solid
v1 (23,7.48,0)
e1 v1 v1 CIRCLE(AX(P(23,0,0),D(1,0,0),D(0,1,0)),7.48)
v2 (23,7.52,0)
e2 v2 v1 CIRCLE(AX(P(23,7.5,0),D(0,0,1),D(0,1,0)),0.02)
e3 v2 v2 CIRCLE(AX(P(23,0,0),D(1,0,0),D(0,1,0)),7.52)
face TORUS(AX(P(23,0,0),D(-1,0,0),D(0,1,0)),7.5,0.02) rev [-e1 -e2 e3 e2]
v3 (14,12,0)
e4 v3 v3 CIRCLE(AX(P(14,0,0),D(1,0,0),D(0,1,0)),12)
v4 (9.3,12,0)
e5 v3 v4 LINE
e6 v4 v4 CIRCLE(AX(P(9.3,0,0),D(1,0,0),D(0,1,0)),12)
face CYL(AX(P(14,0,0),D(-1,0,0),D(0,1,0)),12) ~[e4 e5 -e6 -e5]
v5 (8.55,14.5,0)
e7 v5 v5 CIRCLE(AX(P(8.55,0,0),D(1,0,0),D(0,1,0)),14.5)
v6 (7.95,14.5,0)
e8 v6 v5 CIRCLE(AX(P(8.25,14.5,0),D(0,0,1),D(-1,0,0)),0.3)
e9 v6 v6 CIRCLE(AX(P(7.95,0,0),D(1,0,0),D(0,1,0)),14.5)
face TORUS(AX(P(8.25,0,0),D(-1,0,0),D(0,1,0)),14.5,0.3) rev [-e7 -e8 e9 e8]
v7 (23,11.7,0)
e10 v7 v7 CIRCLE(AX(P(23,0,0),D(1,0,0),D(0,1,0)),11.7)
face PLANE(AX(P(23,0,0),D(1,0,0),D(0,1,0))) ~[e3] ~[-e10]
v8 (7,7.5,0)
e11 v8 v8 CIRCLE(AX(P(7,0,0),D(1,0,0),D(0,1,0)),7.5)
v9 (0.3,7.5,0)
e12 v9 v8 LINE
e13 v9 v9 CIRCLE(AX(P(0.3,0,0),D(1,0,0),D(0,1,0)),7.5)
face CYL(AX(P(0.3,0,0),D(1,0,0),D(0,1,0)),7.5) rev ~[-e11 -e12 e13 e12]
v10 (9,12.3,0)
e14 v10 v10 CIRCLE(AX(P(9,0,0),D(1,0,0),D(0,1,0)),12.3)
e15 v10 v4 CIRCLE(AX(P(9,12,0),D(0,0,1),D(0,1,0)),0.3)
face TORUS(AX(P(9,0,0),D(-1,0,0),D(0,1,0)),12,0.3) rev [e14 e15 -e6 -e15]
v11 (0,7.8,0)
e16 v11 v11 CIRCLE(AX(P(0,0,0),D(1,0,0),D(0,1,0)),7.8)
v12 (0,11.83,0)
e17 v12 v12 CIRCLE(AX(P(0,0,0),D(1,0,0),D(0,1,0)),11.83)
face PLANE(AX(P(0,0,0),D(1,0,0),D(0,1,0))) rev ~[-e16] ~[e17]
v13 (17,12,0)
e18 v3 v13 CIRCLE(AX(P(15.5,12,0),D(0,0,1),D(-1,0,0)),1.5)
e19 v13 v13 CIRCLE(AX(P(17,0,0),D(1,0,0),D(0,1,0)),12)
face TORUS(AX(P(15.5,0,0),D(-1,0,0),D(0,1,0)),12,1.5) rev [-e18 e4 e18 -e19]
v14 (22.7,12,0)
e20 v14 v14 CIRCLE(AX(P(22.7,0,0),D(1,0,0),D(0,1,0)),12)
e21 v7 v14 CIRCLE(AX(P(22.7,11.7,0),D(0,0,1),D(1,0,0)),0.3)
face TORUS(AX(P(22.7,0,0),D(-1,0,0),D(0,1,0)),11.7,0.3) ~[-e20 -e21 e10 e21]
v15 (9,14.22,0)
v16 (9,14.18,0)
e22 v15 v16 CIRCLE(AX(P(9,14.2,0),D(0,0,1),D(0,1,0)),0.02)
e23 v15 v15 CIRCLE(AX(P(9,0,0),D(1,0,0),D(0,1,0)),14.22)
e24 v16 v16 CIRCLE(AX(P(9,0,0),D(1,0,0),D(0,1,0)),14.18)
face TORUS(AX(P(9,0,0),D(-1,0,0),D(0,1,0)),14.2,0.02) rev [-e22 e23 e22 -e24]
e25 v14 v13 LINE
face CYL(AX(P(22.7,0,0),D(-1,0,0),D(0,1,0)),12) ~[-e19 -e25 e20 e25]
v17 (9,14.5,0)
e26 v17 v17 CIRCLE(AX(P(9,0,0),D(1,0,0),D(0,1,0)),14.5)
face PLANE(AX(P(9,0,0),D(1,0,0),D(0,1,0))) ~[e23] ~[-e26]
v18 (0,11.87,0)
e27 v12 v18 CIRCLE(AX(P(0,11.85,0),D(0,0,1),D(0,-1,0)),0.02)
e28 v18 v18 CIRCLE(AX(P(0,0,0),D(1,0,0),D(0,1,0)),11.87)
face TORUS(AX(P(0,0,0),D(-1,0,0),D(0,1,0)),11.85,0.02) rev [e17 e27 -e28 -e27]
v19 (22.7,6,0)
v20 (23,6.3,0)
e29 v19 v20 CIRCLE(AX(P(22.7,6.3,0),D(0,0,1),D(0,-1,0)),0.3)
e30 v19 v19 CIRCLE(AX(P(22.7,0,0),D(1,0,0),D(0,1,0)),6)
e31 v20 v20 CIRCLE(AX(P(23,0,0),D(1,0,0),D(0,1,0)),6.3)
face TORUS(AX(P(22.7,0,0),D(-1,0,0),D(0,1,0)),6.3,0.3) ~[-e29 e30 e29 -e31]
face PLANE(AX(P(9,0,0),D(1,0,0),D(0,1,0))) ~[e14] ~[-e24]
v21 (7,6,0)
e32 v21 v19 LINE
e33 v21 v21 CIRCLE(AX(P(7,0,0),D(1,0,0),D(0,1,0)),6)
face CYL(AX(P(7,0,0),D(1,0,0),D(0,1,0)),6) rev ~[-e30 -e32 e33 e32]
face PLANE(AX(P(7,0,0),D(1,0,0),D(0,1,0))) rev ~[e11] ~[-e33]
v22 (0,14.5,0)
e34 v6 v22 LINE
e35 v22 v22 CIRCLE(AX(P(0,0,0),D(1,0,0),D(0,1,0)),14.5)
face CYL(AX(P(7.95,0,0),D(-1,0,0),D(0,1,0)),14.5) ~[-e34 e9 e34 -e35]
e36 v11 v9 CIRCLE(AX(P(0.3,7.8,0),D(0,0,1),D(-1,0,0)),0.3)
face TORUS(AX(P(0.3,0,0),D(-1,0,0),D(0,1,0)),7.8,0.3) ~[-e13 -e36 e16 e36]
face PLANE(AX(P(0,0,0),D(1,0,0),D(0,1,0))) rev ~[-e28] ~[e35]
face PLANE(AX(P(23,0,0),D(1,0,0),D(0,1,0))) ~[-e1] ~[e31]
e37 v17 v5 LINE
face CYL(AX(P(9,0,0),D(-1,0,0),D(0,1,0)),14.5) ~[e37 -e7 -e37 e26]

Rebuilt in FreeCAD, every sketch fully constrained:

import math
import FreeCAD as App
import Part
import Sketcher

V = App.Vector

doc = App.newDocument("Part")
params = doc.addObject("Spreadsheet::Sheet", "Params")
for row, (alias, value) in enumerate([
    ("sketch1_radius", "0.3 mm"),
    ("sketch1_radius2", "1.5 mm"),
    ("sketch1_radius3", "0.02 mm"),
    ("sketch1_width", "6.7 mm"),
    ("sketch1_width2", "15.7 mm"),
    ("revolution_angle", "360 deg"),
], start=1):
    params.set(f"A{row}", alias)
    params.set(f"B{row}", "=" + value)
    params.setAlias(f"B{row}", alias)

body = doc.addObject("PartDesign::Body", "Body")

sketch1 = doc.addObject("Sketcher::SketchObject", "Sketch")
body.addObject(sketch1)
sketch1.AttachmentSupport = (doc.XY_Plane, [""])
sketch1.MapMode = "FlatFace"
sketch1.addGeometry([
    Part.LineSegment(V(7.95, 14.5, 0), V(0, 14.5, 0)),
    Part.LineSegment(V(0, 14.5, 0), V(0, 11.87, 0)),
    Part.ArcOfCircle(Part.Circle(V(0, 11.85, 0), V(0, 0, 1), 0.02), math.radians(-90), math.radians(90)),
    Part.LineSegment(V(0, 11.83, 0), V(0, 7.8, 0)),
    Part.ArcOfCircle(Part.Circle(V(0.3, 7.8, 0), V(0, 0, 1), 0.3), math.radians(180), math.radians(270)),
    Part.LineSegment(V(0.3, 7.5, 0), V(7, 7.5, 0)),
    Part.LineSegment(V(7, 7.5, 0), V(7, 6, 0)),
    Part.LineSegment(V(7, 6, 0), V(22.7, 6, 0)),
    Part.ArcOfCircle(Part.Circle(V(22.7, 6.3, 0), V(0, 0, 1), 0.3), math.radians(-90), math.radians(0)),
    Part.LineSegment(V(23, 6.3, 0), V(23, 7.48, 0)),
    Part.ArcOfCircle(Part.Circle(V(23, 7.5, 0), V(0, 0, 1), 0.02), math.radians(90), math.radians(270)),
    Part.LineSegment(V(23, 7.52, 0), V(23, 11.7, 0)),
    Part.ArcOfCircle(Part.Circle(V(22.7, 11.7, 0), V(0, 0, 1), 0.3), math.radians(0), math.radians(90)),
    Part.LineSegment(V(22.7, 12, 0), V(17, 12, 0)),
    Part.ArcOfCircle(Part.Circle(V(15.5, 12, 0), V(0, 0, 1), 1.5), math.radians(180), math.radians(360)),
    Part.LineSegment(V(14, 12, 0), V(9.3, 12, 0)),
    Part.ArcOfCircle(Part.Circle(V(9, 12, 0), V(0, 0, 1), 0.3), math.radians(90), math.radians(360)),
    Part.LineSegment(V(9, 12.3, 0), V(9, 14.18, 0)),
    Part.ArcOfCircle(Part.Circle(V(9, 14.2, 0), V(0, 0, 1), 0.02), math.radians(90), math.radians(270)),
    Part.LineSegment(V(9, 14.22, 0), V(9, 14.5, 0)),
    Part.LineSegment(V(9, 14.5, 0), V(8.55, 14.5, 0)),
    Part.ArcOfCircle(Part.Circle(V(8.25, 14.5, 0), V(0, 0, 1), 0.3), math.radians(180), math.radians(360)),
], False)
sketch1.addConstraint([
    Sketcher.Constraint("Coincident", 0, 2, 1, 1),
    Sketcher.Constraint("Coincident", 1, 2, 2, 2),
    Sketcher.Constraint("Coincident", 2, 1, 3, 1),
    Sketcher.Constraint("Tangent", 3, 2, 4, 1),
    Sketcher.Constraint("Tangent", 4, 2, 5, 1),
    Sketcher.Constraint("Coincident", 5, 2, 6, 1),
    Sketcher.Constraint("Coincident", 6, 2, 7, 1),
    Sketcher.Constraint("Tangent", 7, 2, 8, 1),
    Sketcher.Constraint("Tangent", 8, 2, 9, 1),
    Sketcher.Constraint("Coincident", 9, 2, 10, 2),
    Sketcher.Constraint("Coincident", 10, 1, 11, 1),
    Sketcher.Constraint("Tangent", 11, 2, 12, 1),
    Sketcher.Constraint("Tangent", 12, 2, 13, 1),
    Sketcher.Constraint("Coincident", 13, 2, 14, 2),
    Sketcher.Constraint("Coincident", 14, 1, 15, 1),
    Sketcher.Constraint("Coincident", 15, 2, 16, 2),
    Sketcher.Constraint("Coincident", 16, 1, 17, 1),
    Sketcher.Constraint("Coincident", 17, 2, 18, 2),
    Sketcher.Constraint("Coincident", 18, 1, 19, 1),
    Sketcher.Constraint("Coincident", 19, 2, 20, 1),
    Sketcher.Constraint("Coincident", 20, 2, 21, 2),
    Sketcher.Constraint("Coincident", 21, 1, 0, 1),
    Sketcher.Constraint("Horizontal", 0),
    Sketcher.Constraint("Vertical", 1),
    Sketcher.Constraint("Vertical", 3),
    Sketcher.Constraint("Horizontal", 5),
    Sketcher.Constraint("Vertical", 6),
    Sketcher.Constraint("Horizontal", 7),
    Sketcher.Constraint("Vertical", 9),
    Sketcher.Constraint("Vertical", 11),
    Sketcher.Constraint("Horizontal", 13),
    Sketcher.Constraint("Horizontal", 15),
    Sketcher.Constraint("Vertical", 17),
    Sketcher.Constraint("Vertical", 19),
    Sketcher.Constraint("Horizontal", 20),
    Sketcher.Constraint("Equal", 4, 8),
    Sketcher.Constraint("Equal", 2, 10),
    Sketcher.Constraint("Equal", 8, 12),
    Sketcher.Constraint("Equal", 12, 16),
    Sketcher.Constraint("Equal", 10, 18),
    Sketcher.Constraint("Equal", 16, 21),
    Sketcher.Constraint("PointOnObject", 2, 3, -2),
    Sketcher.Constraint("PointOnObject", 0, 2, -2),
    Sketcher.Constraint("PointOnObject", 2, 1, -2),
    Sketcher.Constraint("Horizontal", 14, 3, 16, 3),
    Sketcher.Constraint("Horizontal", 21, 3, 0, 2),
    Sketcher.Constraint("Horizontal", 10, 3, 4, 2),
    Sketcher.Constraint("Horizontal", 16, 3, 12, 2),
    Sketcher.Constraint("Horizontal", 13, 2, 14, 1),
    Sketcher.Constraint("Horizontal", 0, 2, 19, 2),
    Sketcher.Constraint("Vertical", 8, 3, 12, 3),
    Sketcher.Constraint("Vertical", 16, 3, 18, 3),
    Sketcher.Constraint("Vertical", 10, 3, 8, 2),
    Sketcher.Constraint("Vertical", 18, 3, 16, 1),
    Sketcher.Constraint("Vertical", 17, 2, 18, 1),
    Sketcher.Constraint("Radius", 4, 0.3),
    Sketcher.Constraint("Radius", 14, 1.5),
    Sketcher.Constraint("Radius", 2, 0.02),
    Sketcher.Constraint("DistanceX", 5, 1, 5, 2, 6.7),
    Sketcher.Constraint("DistanceX", 7, 1, 7, 2, 15.7),
    Sketcher.Constraint("DistanceX", 13, 2, 13, 1, 5.7),
    Sketcher.Constraint("DistanceX", 15, 2, 15, 1, 4.7),
    Sketcher.Constraint("DistanceY", 6, 2, 6, 1, 1.5),
    Sketcher.Constraint("DistanceY", -1, 1, 14, 3, 12.0),
    Sketcher.Constraint("DistanceY", -1, 1, 6, 2, 6.0),
    Sketcher.Constraint("DistanceX", 0, 2, 0, 1, 7.95),
    Sketcher.Constraint("DistanceY", 1, 2, 1, 1, 2.63),
    Sketcher.Constraint("DistanceY", 3, 2, 3, 1, 4.03),
    Sketcher.Constraint("DistanceY", 17, 1, 17, 2, 1.88),
])
sketch1.setExpression("Constraints[55]", "Params.sketch1_radius")
sketch1.setExpression("Constraints[56]", "Params.sketch1_radius2")
sketch1.setExpression("Constraints[57]", "Params.sketch1_radius3")
sketch1.setExpression("Constraints[58]", "Params.sketch1_width")
sketch1.setExpression("Constraints[59]", "Params.sketch1_width2")
revolution = doc.addObject("PartDesign::Revolution", "Revolution")
body.addObject(revolution)
revolution.Profile = sketch1
revolution.ReferenceAxis = (sketch1, ["H_Axis"])
revolution.setExpression("Angle", "Params.revolution_angle")

doc.recompute()
